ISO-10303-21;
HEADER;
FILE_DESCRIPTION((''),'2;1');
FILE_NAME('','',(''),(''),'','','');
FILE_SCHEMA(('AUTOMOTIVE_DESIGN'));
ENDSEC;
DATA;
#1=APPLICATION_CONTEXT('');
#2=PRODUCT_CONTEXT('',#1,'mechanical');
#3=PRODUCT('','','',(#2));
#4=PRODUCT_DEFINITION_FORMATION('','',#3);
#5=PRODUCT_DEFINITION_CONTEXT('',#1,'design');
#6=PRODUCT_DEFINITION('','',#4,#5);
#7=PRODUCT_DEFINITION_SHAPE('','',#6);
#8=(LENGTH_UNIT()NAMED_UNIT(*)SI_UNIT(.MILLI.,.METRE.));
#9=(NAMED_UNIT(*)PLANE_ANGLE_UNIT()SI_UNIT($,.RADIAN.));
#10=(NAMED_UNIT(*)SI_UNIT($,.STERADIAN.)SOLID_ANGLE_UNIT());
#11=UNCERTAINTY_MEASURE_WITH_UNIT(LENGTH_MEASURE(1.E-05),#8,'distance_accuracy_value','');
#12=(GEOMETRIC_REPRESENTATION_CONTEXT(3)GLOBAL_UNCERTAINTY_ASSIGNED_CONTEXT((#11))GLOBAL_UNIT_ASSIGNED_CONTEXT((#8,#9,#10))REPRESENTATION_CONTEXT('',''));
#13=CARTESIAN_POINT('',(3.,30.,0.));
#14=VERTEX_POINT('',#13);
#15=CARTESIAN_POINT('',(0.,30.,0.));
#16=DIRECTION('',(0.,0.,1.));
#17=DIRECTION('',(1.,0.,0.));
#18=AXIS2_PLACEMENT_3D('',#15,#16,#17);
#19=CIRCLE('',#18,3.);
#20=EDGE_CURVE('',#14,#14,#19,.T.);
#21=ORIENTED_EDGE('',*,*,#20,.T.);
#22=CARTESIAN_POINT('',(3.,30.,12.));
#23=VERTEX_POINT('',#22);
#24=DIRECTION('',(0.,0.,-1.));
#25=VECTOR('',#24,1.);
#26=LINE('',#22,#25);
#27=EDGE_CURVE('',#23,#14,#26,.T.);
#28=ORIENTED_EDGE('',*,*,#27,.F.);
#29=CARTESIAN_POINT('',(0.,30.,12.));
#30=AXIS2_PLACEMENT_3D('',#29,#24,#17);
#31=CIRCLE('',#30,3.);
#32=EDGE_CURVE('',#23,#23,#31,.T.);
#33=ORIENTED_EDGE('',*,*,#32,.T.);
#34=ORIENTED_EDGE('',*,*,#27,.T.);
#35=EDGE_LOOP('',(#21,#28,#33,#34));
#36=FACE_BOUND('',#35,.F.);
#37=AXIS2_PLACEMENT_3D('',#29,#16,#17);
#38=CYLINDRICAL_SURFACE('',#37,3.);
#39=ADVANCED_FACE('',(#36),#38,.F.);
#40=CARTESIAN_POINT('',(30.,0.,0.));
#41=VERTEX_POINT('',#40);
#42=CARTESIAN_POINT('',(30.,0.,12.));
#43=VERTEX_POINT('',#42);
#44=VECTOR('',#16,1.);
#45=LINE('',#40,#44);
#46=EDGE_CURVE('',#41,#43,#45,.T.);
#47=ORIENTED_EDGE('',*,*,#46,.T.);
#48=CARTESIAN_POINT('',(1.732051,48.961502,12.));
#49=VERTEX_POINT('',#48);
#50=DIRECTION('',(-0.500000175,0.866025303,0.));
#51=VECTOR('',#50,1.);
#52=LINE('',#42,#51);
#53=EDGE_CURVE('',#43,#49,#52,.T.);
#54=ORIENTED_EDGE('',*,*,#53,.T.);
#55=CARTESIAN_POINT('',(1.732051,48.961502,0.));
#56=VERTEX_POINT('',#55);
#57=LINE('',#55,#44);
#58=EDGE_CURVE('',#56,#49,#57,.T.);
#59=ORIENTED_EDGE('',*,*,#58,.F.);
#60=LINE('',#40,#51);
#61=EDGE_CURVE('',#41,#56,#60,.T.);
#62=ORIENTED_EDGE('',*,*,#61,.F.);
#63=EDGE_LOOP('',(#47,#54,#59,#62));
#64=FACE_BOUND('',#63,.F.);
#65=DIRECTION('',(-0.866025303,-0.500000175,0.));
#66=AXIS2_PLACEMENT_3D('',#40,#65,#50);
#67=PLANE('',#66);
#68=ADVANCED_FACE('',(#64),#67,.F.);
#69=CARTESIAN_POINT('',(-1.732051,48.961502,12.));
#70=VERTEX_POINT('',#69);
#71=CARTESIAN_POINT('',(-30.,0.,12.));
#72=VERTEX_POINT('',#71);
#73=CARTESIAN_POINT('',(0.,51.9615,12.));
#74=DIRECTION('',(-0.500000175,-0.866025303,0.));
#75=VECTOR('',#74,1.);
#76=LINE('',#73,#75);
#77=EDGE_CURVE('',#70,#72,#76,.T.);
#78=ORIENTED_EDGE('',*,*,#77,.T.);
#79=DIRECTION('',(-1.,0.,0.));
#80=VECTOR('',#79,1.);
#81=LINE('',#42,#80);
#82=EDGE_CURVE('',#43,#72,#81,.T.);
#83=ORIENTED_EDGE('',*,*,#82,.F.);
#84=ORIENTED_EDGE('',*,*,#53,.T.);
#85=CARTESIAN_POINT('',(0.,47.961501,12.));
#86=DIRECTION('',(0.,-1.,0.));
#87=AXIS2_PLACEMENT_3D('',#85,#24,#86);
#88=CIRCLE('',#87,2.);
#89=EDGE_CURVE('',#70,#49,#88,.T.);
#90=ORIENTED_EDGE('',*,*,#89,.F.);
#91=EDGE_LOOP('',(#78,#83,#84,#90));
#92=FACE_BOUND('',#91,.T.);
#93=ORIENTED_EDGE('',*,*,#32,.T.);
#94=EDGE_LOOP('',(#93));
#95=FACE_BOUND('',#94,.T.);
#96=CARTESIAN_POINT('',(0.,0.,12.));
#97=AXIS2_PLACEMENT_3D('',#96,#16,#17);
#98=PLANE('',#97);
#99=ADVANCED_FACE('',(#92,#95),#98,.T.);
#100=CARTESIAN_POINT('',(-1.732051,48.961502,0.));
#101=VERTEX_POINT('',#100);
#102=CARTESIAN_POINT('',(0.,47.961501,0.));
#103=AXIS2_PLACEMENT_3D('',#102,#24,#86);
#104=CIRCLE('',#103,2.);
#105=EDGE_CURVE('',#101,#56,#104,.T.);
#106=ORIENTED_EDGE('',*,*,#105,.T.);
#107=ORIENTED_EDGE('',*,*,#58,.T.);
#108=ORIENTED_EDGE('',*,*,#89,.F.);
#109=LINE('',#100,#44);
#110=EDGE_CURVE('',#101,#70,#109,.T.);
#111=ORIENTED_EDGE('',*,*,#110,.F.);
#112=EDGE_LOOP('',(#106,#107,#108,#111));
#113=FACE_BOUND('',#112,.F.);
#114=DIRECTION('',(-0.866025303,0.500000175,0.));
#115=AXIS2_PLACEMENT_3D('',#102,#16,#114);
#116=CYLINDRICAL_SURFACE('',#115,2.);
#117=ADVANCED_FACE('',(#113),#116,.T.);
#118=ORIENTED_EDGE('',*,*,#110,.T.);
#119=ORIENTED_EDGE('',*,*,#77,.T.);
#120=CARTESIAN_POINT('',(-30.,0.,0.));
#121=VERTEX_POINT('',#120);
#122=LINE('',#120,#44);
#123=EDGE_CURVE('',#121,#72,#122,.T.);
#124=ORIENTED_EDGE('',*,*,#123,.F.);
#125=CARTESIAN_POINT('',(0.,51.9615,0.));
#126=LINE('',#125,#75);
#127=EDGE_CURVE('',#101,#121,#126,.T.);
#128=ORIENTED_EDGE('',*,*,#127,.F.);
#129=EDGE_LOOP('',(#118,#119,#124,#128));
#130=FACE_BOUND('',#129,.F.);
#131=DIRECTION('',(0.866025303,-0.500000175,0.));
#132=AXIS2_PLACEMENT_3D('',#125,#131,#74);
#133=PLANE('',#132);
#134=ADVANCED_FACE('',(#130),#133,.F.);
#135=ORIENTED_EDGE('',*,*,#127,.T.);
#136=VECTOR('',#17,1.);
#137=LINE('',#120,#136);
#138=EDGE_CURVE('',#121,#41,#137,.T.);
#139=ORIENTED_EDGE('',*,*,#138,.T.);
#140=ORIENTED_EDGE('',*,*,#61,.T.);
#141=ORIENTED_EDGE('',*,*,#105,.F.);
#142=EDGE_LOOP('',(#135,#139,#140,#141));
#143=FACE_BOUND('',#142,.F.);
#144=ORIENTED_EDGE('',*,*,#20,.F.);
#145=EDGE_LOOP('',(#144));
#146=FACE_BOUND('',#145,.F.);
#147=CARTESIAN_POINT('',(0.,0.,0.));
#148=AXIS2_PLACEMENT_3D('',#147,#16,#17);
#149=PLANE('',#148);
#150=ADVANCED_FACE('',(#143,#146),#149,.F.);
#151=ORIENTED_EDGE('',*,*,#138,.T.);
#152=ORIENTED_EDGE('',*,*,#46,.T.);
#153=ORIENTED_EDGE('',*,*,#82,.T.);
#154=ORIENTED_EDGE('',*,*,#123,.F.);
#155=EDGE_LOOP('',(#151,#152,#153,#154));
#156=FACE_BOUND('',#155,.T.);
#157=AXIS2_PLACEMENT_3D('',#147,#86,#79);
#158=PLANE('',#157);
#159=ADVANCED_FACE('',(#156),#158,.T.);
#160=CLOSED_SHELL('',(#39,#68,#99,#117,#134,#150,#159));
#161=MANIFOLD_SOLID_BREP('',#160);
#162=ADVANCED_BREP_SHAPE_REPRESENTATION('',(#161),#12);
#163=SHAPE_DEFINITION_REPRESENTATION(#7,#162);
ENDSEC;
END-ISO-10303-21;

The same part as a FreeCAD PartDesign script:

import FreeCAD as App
import Part
import Sketcher

V = App.Vector


def edges_at(feature, points):
    """Names of the edges that pass closest to the given points."""
    edges = feature.Shape.Edges
    near = lambda p: min(range(len(edges)), key=lambda i: edges[i].distToShape(Part.Vertex(*p))[0])
    return sorted({f"Edge{near(p) + 1}" for p in points})

doc = App.newDocument("Part")
body = doc.addObject("PartDesign::Body", "Body")

sketch1 = body.newObject("Sketcher::SketchObject", "Sketch")
sketch1.AttachmentSupport = (doc.getObject("XY_Plane"), [""])
sketch1.MapMode = "FlatFace"
sketch1.addGeometry(Part.LineSegment(V(-30, 0, 0), V(30, 0, 0)), False)
sketch1.addGeometry(Part.LineSegment(V(30, 0, 0), V(0, 52, 0)), False)
sketch1.addGeometry(Part.LineSegment(V(0, 52, 0), V(-30, 0, 0)), False)
sketch1.addConstraint(Sketcher.Constraint("Coincident", 0, 2, 1, 1))
sketch1.addConstraint(Sketcher.Constraint("Coincident", 1, 2, 2, 1))
sketch1.addConstraint(Sketcher.Constraint("Coincident", 2, 2, 0, 1))
sketch1.addConstraint(Sketcher.Constraint("Horizontal", 0))
sketch1.addConstraint(Sketcher.Constraint("Symmetric", 0, 2, 2, 2, -1, 1))
sketch1.addConstraint(Sketcher.Constraint("PointOnObject", 1, 2, -2))
sketch1.addConstraint(Sketcher.Constraint("DistanceX", 0, 1, 0, 2, 60.0))
sketch1.addConstraint(Sketcher.Constraint("Distance", 1, 60.0))
pad1 = body.newObject("PartDesign::Pad", "Pad")
pad1.Profile = sketch1
pad1.Length = 12

sketch2 = body.newObject("Sketcher::SketchObject", "Sketch001")
sketch2.AttachmentSupport = (doc.getObject("XY_Plane"), [""])
sketch2.MapMode = "FlatFace"
sketch2.AttachmentOffset = App.Placement(V(0, 0, 12), App.Rotation())
sketch2.addGeometry(Part.Circle(V(0, 30, 0), V(0, 0, 1), 3), False)
sketch2.addConstraint(Sketcher.Constraint("PointOnObject", 0, 3, -2))
sketch2.addConstraint(Sketcher.Constraint("Diameter", 0, 6.0))
sketch2.addConstraint(Sketcher.Constraint("DistanceY", -1, 1, 0, 3, 30.0))
pocket1 = body.newObject("PartDesign::Pocket", "Pocket")
pocket1.Profile = sketch2
pocket1.Type = "ThroughAll"
doc.recompute()

fillet = body.newObject("PartDesign::Fillet", "Fillet")
fillet.Base = (pocket1, edges_at(pocket1, [(0, 51.962, 6)]))
fillet.Radius = 2

doc.recompute()
